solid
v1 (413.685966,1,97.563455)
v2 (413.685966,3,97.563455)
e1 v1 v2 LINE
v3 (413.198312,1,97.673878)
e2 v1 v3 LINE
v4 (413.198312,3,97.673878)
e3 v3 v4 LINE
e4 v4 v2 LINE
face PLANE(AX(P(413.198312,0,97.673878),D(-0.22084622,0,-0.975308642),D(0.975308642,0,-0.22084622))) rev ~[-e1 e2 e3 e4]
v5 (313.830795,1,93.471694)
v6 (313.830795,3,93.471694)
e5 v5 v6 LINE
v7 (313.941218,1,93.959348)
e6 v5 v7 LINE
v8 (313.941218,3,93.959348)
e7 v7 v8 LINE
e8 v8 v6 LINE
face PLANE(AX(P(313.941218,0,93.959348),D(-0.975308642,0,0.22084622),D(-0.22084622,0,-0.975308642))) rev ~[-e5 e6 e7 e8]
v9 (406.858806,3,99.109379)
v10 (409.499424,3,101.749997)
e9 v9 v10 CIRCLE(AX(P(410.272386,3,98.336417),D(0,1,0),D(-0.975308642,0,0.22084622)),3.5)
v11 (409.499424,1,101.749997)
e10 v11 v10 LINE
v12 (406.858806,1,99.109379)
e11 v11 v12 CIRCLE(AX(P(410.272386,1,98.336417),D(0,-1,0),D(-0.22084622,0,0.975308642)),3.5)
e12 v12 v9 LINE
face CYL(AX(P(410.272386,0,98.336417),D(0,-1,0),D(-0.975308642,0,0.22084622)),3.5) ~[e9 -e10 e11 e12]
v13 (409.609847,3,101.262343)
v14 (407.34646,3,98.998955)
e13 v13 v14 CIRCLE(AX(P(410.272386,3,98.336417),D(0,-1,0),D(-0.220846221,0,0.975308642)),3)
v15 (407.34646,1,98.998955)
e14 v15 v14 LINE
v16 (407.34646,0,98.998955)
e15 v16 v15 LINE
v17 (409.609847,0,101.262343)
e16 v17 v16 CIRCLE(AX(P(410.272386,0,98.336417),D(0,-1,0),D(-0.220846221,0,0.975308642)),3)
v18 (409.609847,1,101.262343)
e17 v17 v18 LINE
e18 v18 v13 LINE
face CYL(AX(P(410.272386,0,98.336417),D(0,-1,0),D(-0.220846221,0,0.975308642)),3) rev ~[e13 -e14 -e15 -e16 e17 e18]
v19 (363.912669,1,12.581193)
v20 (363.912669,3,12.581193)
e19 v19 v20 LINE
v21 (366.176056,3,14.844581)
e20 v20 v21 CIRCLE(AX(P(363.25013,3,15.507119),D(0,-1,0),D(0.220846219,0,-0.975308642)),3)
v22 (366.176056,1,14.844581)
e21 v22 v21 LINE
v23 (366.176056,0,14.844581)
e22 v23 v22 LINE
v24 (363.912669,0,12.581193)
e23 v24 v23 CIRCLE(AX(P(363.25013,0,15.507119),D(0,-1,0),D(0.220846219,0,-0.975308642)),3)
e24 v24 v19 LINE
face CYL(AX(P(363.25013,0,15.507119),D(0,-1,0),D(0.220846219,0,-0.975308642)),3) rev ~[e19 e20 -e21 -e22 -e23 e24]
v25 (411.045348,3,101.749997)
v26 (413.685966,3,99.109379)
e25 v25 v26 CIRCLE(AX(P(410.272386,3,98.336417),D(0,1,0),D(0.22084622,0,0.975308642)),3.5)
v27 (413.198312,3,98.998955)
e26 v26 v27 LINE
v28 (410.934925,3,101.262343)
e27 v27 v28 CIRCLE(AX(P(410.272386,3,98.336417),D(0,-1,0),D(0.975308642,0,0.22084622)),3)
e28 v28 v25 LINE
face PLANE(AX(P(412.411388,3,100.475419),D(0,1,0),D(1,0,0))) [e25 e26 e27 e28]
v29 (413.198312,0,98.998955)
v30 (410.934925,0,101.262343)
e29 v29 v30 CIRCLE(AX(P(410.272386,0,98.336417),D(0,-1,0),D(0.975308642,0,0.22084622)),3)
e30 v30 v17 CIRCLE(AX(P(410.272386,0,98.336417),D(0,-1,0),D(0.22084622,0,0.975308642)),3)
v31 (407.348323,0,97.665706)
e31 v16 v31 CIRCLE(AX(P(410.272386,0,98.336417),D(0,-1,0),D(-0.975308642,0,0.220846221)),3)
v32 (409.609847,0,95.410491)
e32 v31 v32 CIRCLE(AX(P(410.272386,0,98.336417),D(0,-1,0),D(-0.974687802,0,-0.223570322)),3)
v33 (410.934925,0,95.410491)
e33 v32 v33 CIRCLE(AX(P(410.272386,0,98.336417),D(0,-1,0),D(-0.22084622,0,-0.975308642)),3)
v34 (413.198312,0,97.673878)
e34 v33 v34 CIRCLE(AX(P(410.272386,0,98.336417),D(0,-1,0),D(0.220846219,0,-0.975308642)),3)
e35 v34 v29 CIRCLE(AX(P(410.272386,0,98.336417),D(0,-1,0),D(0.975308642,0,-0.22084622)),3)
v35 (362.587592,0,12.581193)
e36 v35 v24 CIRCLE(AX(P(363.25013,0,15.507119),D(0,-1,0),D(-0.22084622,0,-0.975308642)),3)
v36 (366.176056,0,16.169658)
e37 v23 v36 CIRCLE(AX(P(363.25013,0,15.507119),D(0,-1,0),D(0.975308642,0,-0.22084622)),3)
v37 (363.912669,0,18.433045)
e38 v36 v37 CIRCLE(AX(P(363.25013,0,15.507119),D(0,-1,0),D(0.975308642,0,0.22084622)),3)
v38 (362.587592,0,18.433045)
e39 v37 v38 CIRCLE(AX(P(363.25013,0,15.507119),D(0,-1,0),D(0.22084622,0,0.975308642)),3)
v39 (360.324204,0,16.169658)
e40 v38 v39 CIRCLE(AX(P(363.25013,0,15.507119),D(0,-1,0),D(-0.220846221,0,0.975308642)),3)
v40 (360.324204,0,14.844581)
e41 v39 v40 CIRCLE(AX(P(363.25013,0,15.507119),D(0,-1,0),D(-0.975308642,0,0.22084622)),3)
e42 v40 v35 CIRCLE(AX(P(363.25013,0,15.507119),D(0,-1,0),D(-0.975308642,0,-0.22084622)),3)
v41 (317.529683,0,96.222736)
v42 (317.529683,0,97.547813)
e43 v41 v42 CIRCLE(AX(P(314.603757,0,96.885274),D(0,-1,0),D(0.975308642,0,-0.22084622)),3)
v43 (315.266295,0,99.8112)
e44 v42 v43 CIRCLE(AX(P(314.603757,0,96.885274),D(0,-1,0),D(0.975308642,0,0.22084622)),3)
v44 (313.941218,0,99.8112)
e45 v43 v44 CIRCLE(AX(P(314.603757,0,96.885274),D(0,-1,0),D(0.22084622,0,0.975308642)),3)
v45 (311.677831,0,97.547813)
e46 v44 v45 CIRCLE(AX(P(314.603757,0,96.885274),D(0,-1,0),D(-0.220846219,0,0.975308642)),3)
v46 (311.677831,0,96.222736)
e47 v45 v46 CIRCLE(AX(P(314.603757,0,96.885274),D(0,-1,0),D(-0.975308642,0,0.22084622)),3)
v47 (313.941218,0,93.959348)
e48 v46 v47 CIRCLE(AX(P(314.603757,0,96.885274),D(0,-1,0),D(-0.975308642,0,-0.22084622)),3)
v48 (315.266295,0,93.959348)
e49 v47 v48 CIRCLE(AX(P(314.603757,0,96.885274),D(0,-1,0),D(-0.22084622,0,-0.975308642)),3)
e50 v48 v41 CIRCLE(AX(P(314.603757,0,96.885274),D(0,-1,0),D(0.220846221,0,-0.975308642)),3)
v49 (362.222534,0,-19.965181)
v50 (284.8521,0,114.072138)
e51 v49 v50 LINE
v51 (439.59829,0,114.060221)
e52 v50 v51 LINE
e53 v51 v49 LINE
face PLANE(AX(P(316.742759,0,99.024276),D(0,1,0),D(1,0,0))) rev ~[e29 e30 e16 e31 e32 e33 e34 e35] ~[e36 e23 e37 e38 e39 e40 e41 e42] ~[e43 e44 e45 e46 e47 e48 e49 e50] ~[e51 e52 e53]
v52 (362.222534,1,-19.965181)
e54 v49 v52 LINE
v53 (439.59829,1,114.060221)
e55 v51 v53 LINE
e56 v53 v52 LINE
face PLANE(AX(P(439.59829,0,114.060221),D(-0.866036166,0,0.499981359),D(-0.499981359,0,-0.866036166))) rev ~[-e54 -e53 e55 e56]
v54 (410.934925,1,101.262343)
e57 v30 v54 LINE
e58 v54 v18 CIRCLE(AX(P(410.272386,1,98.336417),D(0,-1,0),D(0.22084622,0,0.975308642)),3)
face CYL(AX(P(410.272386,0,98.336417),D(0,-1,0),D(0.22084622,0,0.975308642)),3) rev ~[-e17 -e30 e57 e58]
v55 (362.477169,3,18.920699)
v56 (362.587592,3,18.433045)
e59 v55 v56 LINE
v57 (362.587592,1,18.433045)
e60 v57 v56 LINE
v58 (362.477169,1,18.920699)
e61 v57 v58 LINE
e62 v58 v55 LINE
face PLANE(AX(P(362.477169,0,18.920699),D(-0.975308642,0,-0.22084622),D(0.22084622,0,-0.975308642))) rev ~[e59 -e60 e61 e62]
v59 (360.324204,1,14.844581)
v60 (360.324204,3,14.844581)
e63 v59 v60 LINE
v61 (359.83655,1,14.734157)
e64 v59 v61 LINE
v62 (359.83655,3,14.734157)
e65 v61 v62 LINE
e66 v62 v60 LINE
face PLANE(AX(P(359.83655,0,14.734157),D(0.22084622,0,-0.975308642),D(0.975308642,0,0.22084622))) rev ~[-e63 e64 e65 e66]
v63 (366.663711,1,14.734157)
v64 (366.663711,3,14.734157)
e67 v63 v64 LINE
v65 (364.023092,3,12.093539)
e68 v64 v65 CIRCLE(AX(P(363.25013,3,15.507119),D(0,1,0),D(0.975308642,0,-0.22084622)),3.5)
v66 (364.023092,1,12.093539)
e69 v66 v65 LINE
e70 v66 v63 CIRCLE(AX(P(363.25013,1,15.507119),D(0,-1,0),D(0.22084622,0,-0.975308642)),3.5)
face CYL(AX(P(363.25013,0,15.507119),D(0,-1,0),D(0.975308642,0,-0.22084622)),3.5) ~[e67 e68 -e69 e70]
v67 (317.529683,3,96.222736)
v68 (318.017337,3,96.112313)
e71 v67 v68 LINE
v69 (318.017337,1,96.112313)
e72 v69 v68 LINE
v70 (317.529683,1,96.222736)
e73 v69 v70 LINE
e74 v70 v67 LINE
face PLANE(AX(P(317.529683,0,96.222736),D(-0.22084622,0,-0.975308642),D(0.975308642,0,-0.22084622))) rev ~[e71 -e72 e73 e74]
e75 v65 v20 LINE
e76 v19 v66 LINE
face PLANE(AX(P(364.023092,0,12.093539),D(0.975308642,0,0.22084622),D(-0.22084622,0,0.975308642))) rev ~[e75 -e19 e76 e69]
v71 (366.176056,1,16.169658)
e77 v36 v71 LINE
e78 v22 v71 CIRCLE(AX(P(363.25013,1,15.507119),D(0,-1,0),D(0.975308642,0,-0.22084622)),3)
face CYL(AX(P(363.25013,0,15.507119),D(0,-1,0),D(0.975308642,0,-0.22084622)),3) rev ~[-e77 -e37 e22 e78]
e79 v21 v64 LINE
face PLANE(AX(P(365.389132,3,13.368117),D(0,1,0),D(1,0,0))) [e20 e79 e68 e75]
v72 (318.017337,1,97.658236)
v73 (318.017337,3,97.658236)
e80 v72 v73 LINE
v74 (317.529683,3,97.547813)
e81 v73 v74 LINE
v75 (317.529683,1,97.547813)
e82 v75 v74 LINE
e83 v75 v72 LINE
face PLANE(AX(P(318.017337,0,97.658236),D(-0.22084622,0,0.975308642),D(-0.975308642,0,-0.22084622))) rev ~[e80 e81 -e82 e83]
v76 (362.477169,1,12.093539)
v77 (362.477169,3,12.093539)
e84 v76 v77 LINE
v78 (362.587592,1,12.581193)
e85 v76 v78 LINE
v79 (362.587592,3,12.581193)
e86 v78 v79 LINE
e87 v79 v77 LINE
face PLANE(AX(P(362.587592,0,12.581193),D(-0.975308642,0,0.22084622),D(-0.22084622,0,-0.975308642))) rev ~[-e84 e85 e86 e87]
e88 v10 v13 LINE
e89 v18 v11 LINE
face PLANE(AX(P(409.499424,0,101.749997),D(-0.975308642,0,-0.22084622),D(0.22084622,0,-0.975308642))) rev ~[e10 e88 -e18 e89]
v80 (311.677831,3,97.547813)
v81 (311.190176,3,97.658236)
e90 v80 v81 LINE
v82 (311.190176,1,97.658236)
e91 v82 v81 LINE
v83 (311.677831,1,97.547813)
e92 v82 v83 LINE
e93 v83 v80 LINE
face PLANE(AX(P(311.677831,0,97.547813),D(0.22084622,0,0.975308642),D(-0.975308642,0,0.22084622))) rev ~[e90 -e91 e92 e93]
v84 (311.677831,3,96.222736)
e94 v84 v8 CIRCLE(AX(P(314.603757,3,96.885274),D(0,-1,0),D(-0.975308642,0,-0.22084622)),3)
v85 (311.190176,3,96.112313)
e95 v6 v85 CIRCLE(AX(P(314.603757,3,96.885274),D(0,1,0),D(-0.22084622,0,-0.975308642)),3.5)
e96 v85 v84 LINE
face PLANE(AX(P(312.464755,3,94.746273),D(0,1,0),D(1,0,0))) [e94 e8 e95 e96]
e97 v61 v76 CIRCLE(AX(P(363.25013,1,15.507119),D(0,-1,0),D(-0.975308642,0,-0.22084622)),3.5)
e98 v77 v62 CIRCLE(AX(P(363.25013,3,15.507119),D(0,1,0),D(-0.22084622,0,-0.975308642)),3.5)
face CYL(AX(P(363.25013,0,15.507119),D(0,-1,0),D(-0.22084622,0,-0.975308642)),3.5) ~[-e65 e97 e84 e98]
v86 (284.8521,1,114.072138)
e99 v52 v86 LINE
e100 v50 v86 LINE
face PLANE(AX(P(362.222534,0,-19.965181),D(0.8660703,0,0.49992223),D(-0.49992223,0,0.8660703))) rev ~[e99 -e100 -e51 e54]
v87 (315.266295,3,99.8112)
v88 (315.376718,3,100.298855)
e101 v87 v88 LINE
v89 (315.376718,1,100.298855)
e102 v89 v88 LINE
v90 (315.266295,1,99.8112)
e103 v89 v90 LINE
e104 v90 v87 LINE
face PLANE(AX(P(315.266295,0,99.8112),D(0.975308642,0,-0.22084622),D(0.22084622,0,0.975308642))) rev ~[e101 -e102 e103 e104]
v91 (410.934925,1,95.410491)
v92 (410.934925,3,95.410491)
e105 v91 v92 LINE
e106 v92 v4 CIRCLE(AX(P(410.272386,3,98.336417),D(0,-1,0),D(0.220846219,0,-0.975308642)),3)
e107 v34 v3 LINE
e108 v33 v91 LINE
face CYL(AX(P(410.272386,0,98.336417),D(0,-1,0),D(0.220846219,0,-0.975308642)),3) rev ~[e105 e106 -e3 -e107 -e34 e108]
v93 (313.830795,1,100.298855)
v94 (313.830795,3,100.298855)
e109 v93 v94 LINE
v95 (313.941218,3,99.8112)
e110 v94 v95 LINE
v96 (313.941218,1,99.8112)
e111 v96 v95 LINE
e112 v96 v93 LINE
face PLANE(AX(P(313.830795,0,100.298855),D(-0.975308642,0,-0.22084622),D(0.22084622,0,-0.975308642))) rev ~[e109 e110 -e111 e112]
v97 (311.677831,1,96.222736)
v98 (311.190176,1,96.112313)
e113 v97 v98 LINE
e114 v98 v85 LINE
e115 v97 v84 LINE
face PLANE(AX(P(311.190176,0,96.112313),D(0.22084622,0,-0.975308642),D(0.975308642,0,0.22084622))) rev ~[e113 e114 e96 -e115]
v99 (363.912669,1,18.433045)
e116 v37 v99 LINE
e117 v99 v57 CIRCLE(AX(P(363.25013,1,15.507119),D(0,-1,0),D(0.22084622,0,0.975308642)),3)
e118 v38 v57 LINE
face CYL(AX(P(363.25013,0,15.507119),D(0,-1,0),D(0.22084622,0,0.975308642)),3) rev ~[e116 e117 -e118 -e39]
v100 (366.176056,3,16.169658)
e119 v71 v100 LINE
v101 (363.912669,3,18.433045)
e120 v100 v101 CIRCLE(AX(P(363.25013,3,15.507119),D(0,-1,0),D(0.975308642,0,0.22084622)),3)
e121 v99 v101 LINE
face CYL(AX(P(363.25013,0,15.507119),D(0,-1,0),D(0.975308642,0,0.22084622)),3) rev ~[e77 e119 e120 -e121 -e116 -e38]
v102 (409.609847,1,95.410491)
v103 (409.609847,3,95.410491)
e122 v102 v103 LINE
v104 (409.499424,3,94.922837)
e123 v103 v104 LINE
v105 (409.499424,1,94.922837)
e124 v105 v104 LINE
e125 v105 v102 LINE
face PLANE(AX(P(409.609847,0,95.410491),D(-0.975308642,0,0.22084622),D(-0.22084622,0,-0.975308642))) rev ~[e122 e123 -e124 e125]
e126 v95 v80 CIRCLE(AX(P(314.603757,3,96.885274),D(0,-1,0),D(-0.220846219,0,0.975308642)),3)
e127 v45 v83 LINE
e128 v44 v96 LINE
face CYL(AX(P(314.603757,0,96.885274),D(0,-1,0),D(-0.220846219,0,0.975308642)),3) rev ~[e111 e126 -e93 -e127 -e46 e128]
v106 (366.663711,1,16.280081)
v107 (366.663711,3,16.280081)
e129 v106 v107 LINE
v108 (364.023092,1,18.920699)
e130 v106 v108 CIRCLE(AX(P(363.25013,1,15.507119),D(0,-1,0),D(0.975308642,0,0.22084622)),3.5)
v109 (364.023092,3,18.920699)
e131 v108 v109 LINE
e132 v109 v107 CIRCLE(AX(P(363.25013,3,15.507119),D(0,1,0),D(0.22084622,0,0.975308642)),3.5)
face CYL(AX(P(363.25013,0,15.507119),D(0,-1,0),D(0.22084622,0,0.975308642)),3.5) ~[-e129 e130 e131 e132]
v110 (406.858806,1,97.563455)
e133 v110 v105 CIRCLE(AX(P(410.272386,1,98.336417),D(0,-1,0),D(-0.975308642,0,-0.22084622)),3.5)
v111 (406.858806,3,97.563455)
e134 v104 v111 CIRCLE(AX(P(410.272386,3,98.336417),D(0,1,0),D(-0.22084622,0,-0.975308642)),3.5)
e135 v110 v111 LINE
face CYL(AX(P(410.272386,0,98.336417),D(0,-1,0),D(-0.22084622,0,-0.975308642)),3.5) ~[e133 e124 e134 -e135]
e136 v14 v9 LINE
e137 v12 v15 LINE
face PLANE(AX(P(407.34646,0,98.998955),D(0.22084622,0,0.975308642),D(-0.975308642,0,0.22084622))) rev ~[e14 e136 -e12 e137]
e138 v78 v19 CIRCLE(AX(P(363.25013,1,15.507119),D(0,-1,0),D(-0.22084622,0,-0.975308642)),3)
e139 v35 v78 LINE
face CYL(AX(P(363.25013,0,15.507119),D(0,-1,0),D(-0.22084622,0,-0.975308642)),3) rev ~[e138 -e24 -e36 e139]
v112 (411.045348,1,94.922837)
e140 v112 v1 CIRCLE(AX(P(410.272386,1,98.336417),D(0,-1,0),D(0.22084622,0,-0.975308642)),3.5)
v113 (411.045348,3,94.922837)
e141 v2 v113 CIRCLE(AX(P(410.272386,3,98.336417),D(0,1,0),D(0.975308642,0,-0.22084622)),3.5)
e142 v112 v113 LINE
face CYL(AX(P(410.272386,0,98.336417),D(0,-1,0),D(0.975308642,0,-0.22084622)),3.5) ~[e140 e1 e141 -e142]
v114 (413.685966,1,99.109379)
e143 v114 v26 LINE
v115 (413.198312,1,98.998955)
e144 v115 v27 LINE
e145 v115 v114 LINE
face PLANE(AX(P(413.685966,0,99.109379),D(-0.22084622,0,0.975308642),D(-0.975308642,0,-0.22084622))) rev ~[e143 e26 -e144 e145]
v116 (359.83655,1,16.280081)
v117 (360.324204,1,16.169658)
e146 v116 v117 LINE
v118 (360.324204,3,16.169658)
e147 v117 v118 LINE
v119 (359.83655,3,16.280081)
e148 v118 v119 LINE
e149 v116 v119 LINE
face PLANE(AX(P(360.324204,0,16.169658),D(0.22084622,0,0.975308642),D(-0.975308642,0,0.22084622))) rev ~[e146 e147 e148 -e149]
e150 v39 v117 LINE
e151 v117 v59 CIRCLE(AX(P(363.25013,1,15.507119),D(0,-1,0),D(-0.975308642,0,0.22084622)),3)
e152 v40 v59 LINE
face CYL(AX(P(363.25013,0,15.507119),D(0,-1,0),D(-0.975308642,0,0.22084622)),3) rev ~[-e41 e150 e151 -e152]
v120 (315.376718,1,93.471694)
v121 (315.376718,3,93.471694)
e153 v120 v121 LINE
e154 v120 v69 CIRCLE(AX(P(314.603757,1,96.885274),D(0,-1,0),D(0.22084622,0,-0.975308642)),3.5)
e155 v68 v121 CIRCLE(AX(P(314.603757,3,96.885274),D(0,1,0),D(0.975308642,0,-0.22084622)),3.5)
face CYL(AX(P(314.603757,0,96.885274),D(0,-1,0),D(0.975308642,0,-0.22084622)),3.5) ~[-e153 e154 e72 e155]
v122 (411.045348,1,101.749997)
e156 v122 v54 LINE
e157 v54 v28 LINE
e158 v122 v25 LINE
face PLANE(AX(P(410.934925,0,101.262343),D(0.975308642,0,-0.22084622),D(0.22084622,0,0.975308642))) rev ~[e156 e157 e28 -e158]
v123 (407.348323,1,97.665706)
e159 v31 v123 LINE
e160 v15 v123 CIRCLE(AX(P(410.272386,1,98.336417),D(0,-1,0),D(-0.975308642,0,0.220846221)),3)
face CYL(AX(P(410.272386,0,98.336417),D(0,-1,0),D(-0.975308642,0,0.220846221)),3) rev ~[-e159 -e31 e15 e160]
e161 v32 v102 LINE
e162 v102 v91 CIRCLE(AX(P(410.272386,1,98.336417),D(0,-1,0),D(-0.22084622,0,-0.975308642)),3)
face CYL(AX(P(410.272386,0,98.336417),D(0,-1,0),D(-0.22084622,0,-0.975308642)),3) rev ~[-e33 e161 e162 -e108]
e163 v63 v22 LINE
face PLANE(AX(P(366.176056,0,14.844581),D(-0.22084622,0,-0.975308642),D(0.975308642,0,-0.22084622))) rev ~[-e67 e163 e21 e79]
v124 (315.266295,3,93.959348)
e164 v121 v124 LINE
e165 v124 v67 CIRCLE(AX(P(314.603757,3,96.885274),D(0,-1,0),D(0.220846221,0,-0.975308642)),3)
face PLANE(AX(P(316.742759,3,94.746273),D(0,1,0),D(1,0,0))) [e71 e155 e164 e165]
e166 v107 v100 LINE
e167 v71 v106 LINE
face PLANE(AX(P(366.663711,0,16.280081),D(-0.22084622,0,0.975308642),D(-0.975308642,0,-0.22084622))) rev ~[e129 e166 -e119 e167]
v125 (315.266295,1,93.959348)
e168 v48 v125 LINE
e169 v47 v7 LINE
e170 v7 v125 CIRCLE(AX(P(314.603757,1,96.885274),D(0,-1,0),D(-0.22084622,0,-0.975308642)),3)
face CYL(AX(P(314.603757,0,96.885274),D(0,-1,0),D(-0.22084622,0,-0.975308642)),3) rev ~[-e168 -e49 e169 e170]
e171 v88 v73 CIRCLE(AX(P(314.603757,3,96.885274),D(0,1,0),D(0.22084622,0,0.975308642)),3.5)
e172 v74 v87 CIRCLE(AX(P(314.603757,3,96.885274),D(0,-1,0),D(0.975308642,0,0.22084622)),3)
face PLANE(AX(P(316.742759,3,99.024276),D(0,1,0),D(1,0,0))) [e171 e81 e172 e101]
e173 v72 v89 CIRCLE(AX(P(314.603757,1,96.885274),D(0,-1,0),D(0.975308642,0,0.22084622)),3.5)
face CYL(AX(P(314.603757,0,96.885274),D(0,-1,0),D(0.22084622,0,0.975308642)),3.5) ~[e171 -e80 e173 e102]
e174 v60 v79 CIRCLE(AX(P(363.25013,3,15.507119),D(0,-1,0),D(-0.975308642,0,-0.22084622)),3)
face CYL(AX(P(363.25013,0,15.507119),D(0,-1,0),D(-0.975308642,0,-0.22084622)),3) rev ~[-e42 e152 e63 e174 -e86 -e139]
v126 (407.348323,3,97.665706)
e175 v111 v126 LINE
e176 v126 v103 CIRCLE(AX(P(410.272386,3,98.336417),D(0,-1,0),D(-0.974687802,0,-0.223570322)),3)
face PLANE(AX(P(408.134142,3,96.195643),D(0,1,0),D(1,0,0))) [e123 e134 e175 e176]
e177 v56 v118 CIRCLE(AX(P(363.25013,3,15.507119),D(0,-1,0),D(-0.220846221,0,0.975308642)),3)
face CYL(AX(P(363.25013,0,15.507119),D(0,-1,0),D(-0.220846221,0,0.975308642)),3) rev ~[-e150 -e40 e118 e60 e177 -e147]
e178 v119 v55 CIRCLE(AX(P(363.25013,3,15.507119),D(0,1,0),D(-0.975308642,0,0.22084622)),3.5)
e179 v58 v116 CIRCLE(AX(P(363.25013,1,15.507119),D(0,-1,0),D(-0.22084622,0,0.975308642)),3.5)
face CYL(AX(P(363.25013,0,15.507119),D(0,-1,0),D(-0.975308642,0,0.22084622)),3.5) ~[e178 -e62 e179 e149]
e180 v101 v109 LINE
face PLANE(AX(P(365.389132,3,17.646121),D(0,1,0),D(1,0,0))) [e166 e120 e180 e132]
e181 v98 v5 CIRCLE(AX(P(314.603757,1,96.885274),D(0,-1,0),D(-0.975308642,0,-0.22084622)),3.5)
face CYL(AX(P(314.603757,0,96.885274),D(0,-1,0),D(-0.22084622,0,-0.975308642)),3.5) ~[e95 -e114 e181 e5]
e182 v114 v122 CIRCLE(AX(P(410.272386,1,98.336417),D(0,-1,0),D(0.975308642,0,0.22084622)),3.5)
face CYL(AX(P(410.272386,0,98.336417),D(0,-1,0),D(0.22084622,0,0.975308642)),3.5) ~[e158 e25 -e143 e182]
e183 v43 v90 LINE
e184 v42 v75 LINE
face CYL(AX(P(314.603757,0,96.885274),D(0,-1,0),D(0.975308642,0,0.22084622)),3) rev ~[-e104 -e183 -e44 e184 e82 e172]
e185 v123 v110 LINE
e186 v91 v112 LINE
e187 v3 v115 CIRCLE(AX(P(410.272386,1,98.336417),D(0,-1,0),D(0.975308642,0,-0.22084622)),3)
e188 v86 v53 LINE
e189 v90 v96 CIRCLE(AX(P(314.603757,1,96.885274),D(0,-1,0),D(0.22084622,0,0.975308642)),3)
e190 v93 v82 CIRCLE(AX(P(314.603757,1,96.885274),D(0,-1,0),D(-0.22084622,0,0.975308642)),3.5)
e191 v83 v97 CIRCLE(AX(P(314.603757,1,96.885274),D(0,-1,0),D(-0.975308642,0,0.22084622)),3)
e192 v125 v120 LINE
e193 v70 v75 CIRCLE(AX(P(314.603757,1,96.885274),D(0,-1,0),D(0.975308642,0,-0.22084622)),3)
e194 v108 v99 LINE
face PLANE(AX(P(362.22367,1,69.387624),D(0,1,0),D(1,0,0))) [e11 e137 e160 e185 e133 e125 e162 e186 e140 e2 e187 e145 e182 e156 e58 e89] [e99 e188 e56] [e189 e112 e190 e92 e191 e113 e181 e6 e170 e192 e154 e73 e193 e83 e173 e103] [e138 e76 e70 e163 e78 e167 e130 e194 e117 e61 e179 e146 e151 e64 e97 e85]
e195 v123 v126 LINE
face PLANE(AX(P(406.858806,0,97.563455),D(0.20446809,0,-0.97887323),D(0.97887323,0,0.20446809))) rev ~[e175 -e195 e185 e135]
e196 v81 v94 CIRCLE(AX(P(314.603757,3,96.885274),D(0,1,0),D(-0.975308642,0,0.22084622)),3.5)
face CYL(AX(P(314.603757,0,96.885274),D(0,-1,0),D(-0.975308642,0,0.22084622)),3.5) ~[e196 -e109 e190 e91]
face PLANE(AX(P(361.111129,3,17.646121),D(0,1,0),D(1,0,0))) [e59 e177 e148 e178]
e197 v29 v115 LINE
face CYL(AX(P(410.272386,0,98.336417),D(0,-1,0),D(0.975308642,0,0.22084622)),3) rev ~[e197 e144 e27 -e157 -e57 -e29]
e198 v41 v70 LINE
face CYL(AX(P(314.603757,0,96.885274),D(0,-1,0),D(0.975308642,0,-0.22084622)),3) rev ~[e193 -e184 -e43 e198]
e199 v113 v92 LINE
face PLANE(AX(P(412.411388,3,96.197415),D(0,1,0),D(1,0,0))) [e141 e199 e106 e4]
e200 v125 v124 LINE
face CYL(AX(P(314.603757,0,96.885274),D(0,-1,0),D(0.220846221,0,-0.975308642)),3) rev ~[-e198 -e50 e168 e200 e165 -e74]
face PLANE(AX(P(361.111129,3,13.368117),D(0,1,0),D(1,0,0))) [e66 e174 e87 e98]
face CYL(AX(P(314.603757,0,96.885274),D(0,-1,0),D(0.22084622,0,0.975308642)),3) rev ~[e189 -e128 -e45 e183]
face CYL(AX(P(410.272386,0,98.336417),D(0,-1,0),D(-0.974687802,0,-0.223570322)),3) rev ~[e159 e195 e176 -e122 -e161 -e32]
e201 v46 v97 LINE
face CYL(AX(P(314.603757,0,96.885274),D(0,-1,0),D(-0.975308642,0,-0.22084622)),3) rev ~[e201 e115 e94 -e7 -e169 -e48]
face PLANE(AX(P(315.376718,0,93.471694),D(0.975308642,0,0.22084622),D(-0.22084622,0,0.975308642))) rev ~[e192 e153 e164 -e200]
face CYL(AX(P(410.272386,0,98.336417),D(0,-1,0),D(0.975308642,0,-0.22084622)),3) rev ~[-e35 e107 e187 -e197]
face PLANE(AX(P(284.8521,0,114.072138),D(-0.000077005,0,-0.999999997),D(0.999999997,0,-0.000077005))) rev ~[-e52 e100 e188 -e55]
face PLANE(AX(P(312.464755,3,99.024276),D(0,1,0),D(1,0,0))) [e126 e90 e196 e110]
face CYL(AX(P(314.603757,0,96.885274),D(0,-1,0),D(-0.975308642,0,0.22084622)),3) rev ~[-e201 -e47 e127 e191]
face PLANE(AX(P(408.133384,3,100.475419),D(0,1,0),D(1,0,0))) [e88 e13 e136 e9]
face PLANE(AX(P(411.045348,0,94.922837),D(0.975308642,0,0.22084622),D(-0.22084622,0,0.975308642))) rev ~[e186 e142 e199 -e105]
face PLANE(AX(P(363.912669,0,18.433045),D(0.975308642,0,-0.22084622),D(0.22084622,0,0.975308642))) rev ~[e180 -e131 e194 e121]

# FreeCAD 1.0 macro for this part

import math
import FreeCAD as App
import Part
import Sketcher

V = App.Vector


def add_polygon(sketch, points):
    """Adds a closed chain of lines whose ends are joined by coincident constraints."""
    first, n = sketch.GeometryCount, len(points)
    for a, b in zip(points, points[1:] + points[:1]):
        sketch.addGeometry(Part.LineSegment(App.Vector(*a, 0), App.Vector(*b, 0)), False)
    for i in range(n):
        sketch.addConstraint(Sketcher.Constraint("Coincident", first + i, 2, first + (i + 1) % n, 1))

doc = App.newDocument("Part")
body = doc.addObject("PartDesign::Body", "Body")

sketch1 = body.newObject("Sketcher::SketchObject", "Sketch")
sketch1.AttachmentSupport = (doc.getObject("XZ_Plane"), [""])
sketch1.MapMode = "FlatFace"
add_polygon(sketch1, [(362.222534, -19.965181), (284.8521, 114.072138), (439.59829, 114.060221)])
sketch1.addGeometry(Part.LineSegment(V(313.941218, 99.8112, 0), V(313.830795, 100.298855, 0)), False)
sketch1.addGeometry(Part.ArcOfCircle(Part.Circle(V(314.603757, 96.885274, 0), V(0, 0, 1), 3.5), math.radians(102.75874), math.radians(167.24126)), False)
sketch1.addGeometry(Part.LineSegment(V(311.190176, 97.658236, 0), V(311.677831, 97.547813, 0)), False)
sketch1.addGeometry(Part.ArcOfCircle(Part.Circle(V(314.603757, 96.885274, 0), V(0, 0, 1), 3), math.radians(167.24126), math.radians(192.75874)), False)
sketch1.addGeometry(Part.LineSegment(V(311.677831, 96.222736, 0), V(311.190176, 96.112313, 0)), False)
sketch1.addGeometry(Part.ArcOfCircle(Part.Circle(V(314.603757, 96.885274, 0), V(0, 0, 1), 3.5), math.radians(-167.24126), math.radians(-102.75874)), False)
sketch1.addGeometry(Part.LineSegment(V(313.830795, 93.471694, 0), V(313.941218, 93.959348, 0)), False)
sketch1.addGeometry(Part.ArcOfCircle(Part.Circle(V(314.603757, 96.885274, 0), V(0, 0, 1), 3), math.radians(-102.75874), math.radians(-77.24126)), False)
sketch1.addGeometry(Part.LineSegment(V(315.266295, 93.959348, 0), V(315.376718, 93.471694, 0)), False)
sketch1.addGeometry(Part.ArcOfCircle(Part.Circle(V(314.603757, 96.885274, 0), V(0, 0, 1), 3.5), math.radians(-77.24126), math.radians(-12.75874)), False)
sketch1.addGeometry(Part.LineSegment(V(318.017337, 96.112313, 0), V(317.529683, 96.222736, 0)), False)
sketch1.addGeometry(Part.ArcOfCircle(Part.Circle(V(314.603757, 96.885274, 0), V(0, 0, 1), 3), math.radians(-12.75874), math.radians(12.75874)), False)
sketch1.addGeometry(Part.LineSegment(V(317.529683, 97.547813, 0), V(318.017337, 97.658236, 0)), False)
sketch1.addGeometry(Part.ArcOfCircle(Part.Circle(V(314.603757, 96.885274, 0), V(0, 0, 1), 3.5), math.radians(12.75874), math.radians(77.24126)), False)
sketch1.addGeometry(Part.LineSegment(V(315.376718, 100.298855, 0), V(315.266295, 99.8112, 0)), False)
sketch1.addGeometry(Part.ArcOfCircle(Part.Circle(V(314.603757, 96.885274, 0), V(0, 0, 1), 3), math.radians(77.24126), math.radians(102.75874)), False)
sketch1.addGeometry(Part.LineSegment(V(407.348323, 97.665706, 0), V(406.858806, 97.563455, 0)), False)
sketch1.addGeometry(Part.ArcOfCircle(Part.Circle(V(410.272386, 98.336417, 0), V(0, 0, 1), 3.5), math.radians(-167.24126), math.radians(-102.75874)), False)
sketch1.addGeometry(Part.LineSegment(V(409.499424, 94.922837, 0), V(409.609847, 95.410491, 0)), False)
sketch1.addGeometry(Part.ArcOfCircle(Part.Circle(V(410.272386, 98.336417, 0), V(0, 0, 1), 3), math.radians(-102.75874), math.radians(-77.24126)), False)
sketch1.addGeometry(Part.LineSegment(V(410.934925, 95.410491, 0), V(411.045348, 94.922837, 0)), False)
sketch1.addGeometry(Part.ArcOfCircle(Part.Circle(V(410.272386, 98.336417, 0), V(0, 0, 1), 3.5), math.radians(-77.24126), math.radians(-12.75874)), False)
sketch1.addGeometry(Part.LineSegment(V(413.685966, 97.563455, 0), V(413.198312, 97.673878, 0)), False)
sketch1.addGeometry(Part.ArcOfCircle(Part.Circle(V(410.272386, 98.336417, 0), V(0, 0, 1), 3), math.radians(-12.75874), math.radians(12.75874)), False)
sketch1.addGeometry(Part.LineSegment(V(413.198312, 98.998955, 0), V(413.685966, 99.109379, 0)), False)
sketch1.addGeometry(Part.ArcOfCircle(Part.Circle(V(410.272386, 98.336417, 0), V(0, 0, 1), 3.5), math.radians(12.75874), math.radians(77.24126)), False)
sketch1.addGeometry(Part.LineSegment(V(411.045348, 101.749997, 0), V(410.934925, 101.262343, 0)), False)
sketch1.addGeometry(Part.ArcOfCircle(Part.Circle(V(410.272386, 98.336417, 0), V(0, 0, 1), 3), math.radians(77.24126), math.radians(102.75874)), False)
sketch1.addGeometry(Part.LineSegment(V(409.609847, 101.262343, 0), V(409.499424, 101.749997, 0)), False)
sketch1.addGeometry(Part.ArcOfCircle(Part.Circle(V(410.272386, 98.336417, 0), V(0, 0, 1), 3.5), math.radians(102.75874), math.radians(167.24126)), False)
sketch1.addGeometry(Part.LineSegment(V(406.858806, 99.109379, 0), V(407.34646, 98.998955, 0)), False)
sketch1.addGeometry(Part.ArcOfCircle(Part.Circle(V(410.272386, 98.336417, 0), V(0, 0, 1), 3), math.radians(167.24126), math.radians(192.918822)), False)
sketch1.addGeometry(Part.ArcOfCircle(Part.Circle(V(363.25013, 15.507119, 0), V(0, 0, 1), 3), math.radians(-102.75874), math.radians(-77.24126)), False)
sketch1.addGeometry(Part.LineSegment(V(363.912669, 12.581193, 0), V(364.023092, 12.093539, 0)), False)
sketch1.addGeometry(Part.ArcOfCircle(Part.Circle(V(363.25013, 15.507119, 0), V(0, 0, 1), 3.5), math.radians(-77.24126), math.radians(-12.75874)), False)
sketch1.addGeometry(Part.LineSegment(V(366.663711, 14.734157, 0), V(366.176056, 14.844581, 0)), False)
sketch1.addGeometry(Part.ArcOfCircle(Part.Circle(V(363.25013, 15.507119, 0), V(0, 0, 1), 3), math.radians(-12.75874), math.radians(12.75874)), False)
sketch1.addGeometry(Part.LineSegment(V(366.176056, 16.169658, 0), V(366.663711, 16.280081, 0)), False)
sketch1.addGeometry(Part.ArcOfCircle(Part.Circle(V(363.25013, 15.507119, 0), V(0, 0, 1), 3.5), math.radians(12.75874), math.radians(77.24126)), False)
sketch1.addGeometry(Part.LineSegment(V(364.023092, 18.920699, 0), V(363.912669, 18.433045, 0)), False)
sketch1.addGeometry(Part.ArcOfCircle(Part.Circle(V(363.25013, 15.507119, 0), V(0, 0, 1), 3), math.radians(77.24126), math.radians(102.75874)), False)
sketch1.addGeometry(Part.LineSegment(V(362.587592, 18.433045, 0), V(362.477169, 18.920699, 0)), False)
sketch1.addGeometry(Part.ArcOfCircle(Part.Circle(V(363.25013, 15.507119, 0), V(0, 0, 1), 3.5), math.radians(102.75874), math.radians(167.24126)), False)
sketch1.addGeometry(Part.LineSegment(V(359.83655, 16.280081, 0), V(360.324204, 16.169658, 0)), False)
sketch1.addGeometry(Part.ArcOfCircle(Part.Circle(V(363.25013, 15.507119, 0), V(0, 0, 1), 3), math.radians(167.24126), math.radians(192.75874)), False)
sketch1.addGeometry(Part.LineSegment(V(360.324204, 14.844581, 0), V(359.83655, 14.734157, 0)), False)
sketch1.addGeometry(Part.ArcOfCircle(Part.Circle(V(363.25013, 15.507119, 0), V(0, 0, 1), 3.5), math.radians(-167.24126), math.radians(-102.75874)), False)
sketch1.addGeometry(Part.LineSegment(V(362.477169, 12.093539, 0), V(362.587592, 12.581193, 0)), False)
sketch1.addConstraint([
    Sketcher.Constraint("Coincident", 3, 2, 4, 1),
    Sketcher.Constraint("Coincident", 4, 2, 5, 1),
    Sketcher.Constraint("Coincident", 5, 2, 6, 1),
    Sketcher.Constraint("Coincident", 6, 2, 7, 1),
    Sketcher.Constraint("Coincident", 7, 2, 8, 1),
    Sketcher.Constraint("Coincident", 8, 2, 9, 1),
    Sketcher.Constraint("Coincident", 9, 2, 10, 1),
    Sketcher.Constraint("Coincident", 10, 2, 11, 1),
    Sketcher.Constraint("Coincident", 11, 2, 12, 1),
    Sketcher.Constraint("Coincident", 12, 2, 13, 1),
    Sketcher.Constraint("Coincident", 13, 2, 14, 1),
    Sketcher.Constraint("Coincident", 14, 2, 15, 1),
    Sketcher.Constraint("Coincident", 15, 2, 16, 1),
    Sketcher.Constraint("Coincident", 16, 2, 17, 1),
    Sketcher.Constraint("Coincident", 17, 2, 18, 1),
    Sketcher.Constraint("Coincident", 18, 2, 3, 1),
    Sketcher.Constraint("Coincident", 19, 2, 20, 1),
    Sketcher.Constraint("Coincident", 20, 2, 21, 1),
    Sketcher.Constraint("Coincident", 21, 2, 22, 1),
    Sketcher.Constraint("Coincident", 22, 2, 23, 1),
    Sketcher.Constraint("Coincident", 23, 2, 24, 1),
    Sketcher.Constraint("Coincident", 24, 2, 25, 1),
    Sketcher.Constraint("Coincident", 25, 2, 26, 1),
    Sketcher.Constraint("Coincident", 26, 2, 27, 1),
    Sketcher.Constraint("Coincident", 27, 2, 28, 1),
    Sketcher.Constraint("Coincident", 28, 2, 29, 1),
    Sketcher.Constraint("Coincident", 29, 2, 30, 1),
    Sketcher.Constraint("Coincident", 30, 2, 31, 1),
    Sketcher.Constraint("Coincident", 31, 2, 32, 1),
    Sketcher.Constraint("Coincident", 32, 2, 33, 1),
    Sketcher.Constraint("Coincident", 33, 2, 34, 1),
    Sketcher.Constraint("Coincident", 34, 2, 19, 1),
    Sketcher.Constraint("Coincident", 35, 2, 36, 1),
    Sketcher.Constraint("Coincident", 36, 2, 37, 1),
    Sketcher.Constraint("Coincident", 37, 2, 38, 1),
    Sketcher.Constraint("Coincident", 38, 2, 39, 1),
    Sketcher.Constraint("Coincident", 39, 2, 40, 1),
    Sketcher.Constraint("Coincident", 40, 2, 41, 1),
    Sketcher.Constraint("Coincident", 41, 2, 42, 1),
    Sketcher.Constraint("Coincident", 42, 2, 43, 1),
    Sketcher.Constraint("Coincident", 43, 2, 44, 1),
    Sketcher.Constraint("Coincident", 44, 2, 45, 1),
    Sketcher.Constraint("Coincident", 45, 2, 46, 1),
    Sketcher.Constraint("Coincident", 46, 2, 47, 1),
    Sketcher.Constraint("Coincident", 47, 2, 48, 1),
    Sketcher.Constraint("Coincident", 48, 2, 49, 1),
    Sketcher.Constraint("Coincident", 49, 2, 50, 1),
    Sketcher.Constraint("Coincident", 50, 2, 35, 1),
    Sketcher.Constraint("Coincident", 6, 3, 4, 3),
    Sketcher.Constraint("Coincident", 8, 3, 4, 3),
    Sketcher.Constraint("Coincident", 10, 3, 4, 3),
    Sketcher.Constraint("Coincident", 12, 3, 4, 3),
    Sketcher.Constraint("Coincident", 14, 3, 4, 3),
    Sketcher.Constraint("Coincident", 16, 3, 4, 3),
    Sketcher.Constraint("Coincident", 18, 3, 4, 3),
    Sketcher.Constraint("Coincident", 22, 3, 20, 3),
    Sketcher.Constraint("Coincident", 24, 3, 20, 3),
    Sketcher.Constraint("Coincident", 26, 3, 20, 3),
    Sketcher.Constraint("Coincident", 28, 3, 20, 3),
    Sketcher.Constraint("Coincident", 30, 3, 20, 3),
    Sketcher.Constraint("Coincident", 32, 3, 20, 3),
    Sketcher.Constraint("Coincident", 34, 3, 20, 3),
    Sketcher.Constraint("Coincident", 37, 3, 35, 3),
    Sketcher.Constraint("Coincident", 39, 3, 35, 3),
    Sketcher.Constraint("Coincident", 41, 3, 35, 3),
    Sketcher.Constraint("Coincident", 43, 3, 35, 3),
    Sketcher.Constraint("Coincident", 45, 3, 35, 3),
    Sketcher.Constraint("Coincident", 47, 3, 35, 3),
    Sketcher.Constraint("Coincident", 49, 3, 35, 3),
    Sketcher.Constraint("Equal", 4, 8),
    Sketcher.Constraint("Equal", 6, 10),
    Sketcher.Constraint("Equal", 8, 12),
    Sketcher.Constraint("Equal", 10, 14),
    Sketcher.Constraint("Equal", 12, 16),
    Sketcher.Constraint("Equal", 14, 18),
    Sketcher.Constraint("Equal", 16, 20),
    Sketcher.Constraint("Equal", 18, 22),
    Sketcher.Constraint("Equal", 20, 24),
    Sketcher.Constraint("Equal", 22, 26),
    Sketcher.Constraint("Equal", 24, 28),
    Sketcher.Constraint("Equal", 26, 30),
    Sketcher.Constraint("Equal", 28, 32),
    Sketcher.Constraint("Equal", 30, 34),
    Sketcher.Constraint("Equal", 34, 35),
    Sketcher.Constraint("Equal", 32, 37),
    Sketcher.Constraint("Equal", 35, 39),
    Sketcher.Constraint("Equal", 37, 41),
    Sketcher.Constraint("Equal", 39, 43),
    Sketcher.Constraint("Equal", 41, 45),
    Sketcher.Constraint("Equal", 43, 47),
    Sketcher.Constraint("Equal", 45, 49),
    Sketcher.Constraint("Perpendicular", 3, 7),
    Sketcher.Constraint("Perpendicular", 5, 9),
    Sketcher.Constraint("Perpendicular", 7, 11),
    Sketcher.Constraint("Perpendicular", 9, 13),
    Sketcher.Constraint("Perpendicular", 11, 15),
    Sketcher.Constraint("Perpendicular", 13, 17),
    Sketcher.Constraint("Parallel", 17, 21),
    Sketcher.Constraint("Perpendicular", 15, 23),
    Sketcher.Constraint("Perpendicular", 21, 25),
    Sketcher.Constraint("Perpendicular", 23, 27),
    Sketcher.Constraint("Perpendicular", 25, 29),
    Sketcher.Constraint("Perpendicular", 27, 31),
    Sketcher.Constraint("Perpendicular", 29, 33),
    Sketcher.Constraint("Parallel", 31, 36),
    Sketcher.Constraint("Parallel", 33, 38),
    Sketcher.Constraint("Perpendicular", 36, 40),
    Sketcher.Constraint("Perpendicular", 38, 42),
    Sketcher.Constraint("Perpendicular", 40, 44),
    Sketcher.Constraint("Perpendicular", 42, 46),
    Sketcher.Constraint("Perpendicular", 44, 48),
    Sketcher.Constraint("Perpendicular", 46, 50),
    Sketcher.Constraint("Horizontal", 9, 2, 10, 2),
    Sketcher.Constraint("Horizontal", 8, 2, 11, 2),
    Sketcher.Constraint("Horizontal", 7, 2, 12, 2),
    Sketcher.Constraint("Horizontal", 5, 2, 14, 2),
    Sketcher.Constraint("Horizontal", 3, 2, 16, 2),
    Sketcher.Constraint("Horizontal", 21, 2, 22, 2),
    Sketcher.Constraint("Horizontal", 19, 2, 24, 2),
    Sketcher.Constraint("Horizontal", 29, 2, 30, 2),
    Sketcher.Constraint("Horizontal", 27, 2, 32, 2),
    Sketcher.Constraint("Horizontal", 42, 2, 43, 2),
    Sketcher.Constraint("Horizontal", 40, 2, 45, 2),
    Sketcher.Constraint("Horizontal", 38, 2, 47, 2),
    Sketcher.Constraint("Horizontal", 36, 2, 49, 2),
    Sketcher.Constraint("Vertical", 5, 2, 6, 2),
    Sketcher.Constraint("Vertical", 3, 2, 8, 2),
    Sketcher.Constraint("Vertical", 25, 2, 26, 2),
    Sketcher.Constraint("Vertical", 23, 2, 28, 2),
    Sketcher.Constraint("Vertical", 38, 2, 39, 2),
    Sketcher.Constraint("Vertical", 36, 2, 41, 2),
    Sketcher.Constraint("Radius", 6, 3.0),
    Sketcher.Constraint("Radius", 4, 3.5),
    Sketcher.Constraint("DistanceX", -1, 1, 0, 2, 284.8521),
    Sketcher.Constraint("DistanceY", -1, 1, 17, 2, 99.8112),
    Sketcher.Constraint("DistanceY", -1, 1, 41, 2, 18.920699),
    Sketcher.Constraint("Distance", 0, 154.76494),
    Sketcher.Constraint("Distance", 1, 154.74619),
    Sketcher.Constraint("Distance", 2, 154.757281),
    Sketcher.Constraint("Distance", 19, 0.500082),
    Sketcher.Constraint("DistanceX", -1, 1, 35, 3, 363.25013),
    Sketcher.Constraint("DistanceY", -1, 1, 35, 3, 15.507119),
    Sketcher.Constraint("DistanceY", -1, 1, 1, 2, 114.060221),
    Sketcher.Constraint("DistanceY", 2, 2, -1, 1, 19.965181),
    Sketcher.Constraint("DistanceX", -1, 1, 5, 2, 311.677831),
    Sketcher.Constraint("DistanceX", -1, 1, 9, 2, 313.941218),
    Sketcher.Constraint("DistanceY", -1, 1, 9, 2, 93.959348),
    Sketcher.Constraint("DistanceX", -1, 1, 11, 2, 315.376718),
    Sketcher.Constraint("DistanceY", -1, 1, 21, 2, 95.410491),
    Sketcher.Constraint("DistanceY", -1, 1, 25, 2, 97.673878),
    Sketcher.Constraint("DistanceY", -1, 1, 27, 2, 99.109379),
    Sketcher.Constraint("DistanceX", -1, 1, 33, 2, 407.34646),
    Sketcher.Constraint("DistanceX", -1, 1, 37, 2, 366.663711),
])
pad1 = body.newObject("PartDesign::Pad", "Pad")
pad1.Profile = sketch1
pad1.Length = 1
pad1.Reversed = True

sketch2 = body.newObject("Sketcher::SketchObject", "Sketch001")
sketch2.AttachmentSupport = (doc.getObject("XZ_Plane"), [""])
sketch2.MapMode = "FlatFace"
sketch2.addGeometry([
    Part.LineSegment(V(315.3, 99.8, 0), V(315.4, 100.3, 0)),
    Part.ArcOfCircle(Part.Circle(V(314.6, 96.9, 0), V(0, 0, 1), 3.5), math.radians(13), math.radians(77)),
    Part.LineSegment(V(318, 97.7, 0), V(317.5, 97.5, 0)),
    Part.ArcOfCircle(Part.Circle(V(314.6, 96.9, 0), V(0, 0, 1), 3), math.radians(13), math.radians(77)),
    Part.ArcOfCircle(Part.Circle(V(314.6, 96.9, 0), V(0, 0, 1), 3.5), math.radians(-77), math.radians(-13)),
    Part.LineSegment(V(315.4, 93.5, 0), V(315.3, 94, 0)),
    Part.ArcOfCircle(Part.Circle(V(314.6, 96.9, 0), V(0, 0, 1), 3), math.radians(-77), math.radians(-13)),
    Part.LineSegment(V(317.5, 96.2, 0), V(318, 96.1, 0)),
    Part.LineSegment(V(311.7, 97.5, 0), V(311.2, 97.7, 0)),
    Part.ArcOfCircle(Part.Circle(V(314.6, 96.9, 0), V(0, 0, 1), 3.5), math.radians(103), math.radians(167)),
    Part.LineSegment(V(313.8, 100.3, 0), V(313.9, 99.8, 0)),
    Part.ArcOfCircle(Part.Circle(V(314.6, 96.9, 0), V(0, 0, 1), 3), math.radians(103), math.radians(167)),
    Part.ArcOfCircle(Part.Circle(V(314.6, 96.9, 0), V(0, 0, 1), 3.5), math.radians(-167), math.radians(-103)),
    Part.LineSegment(V(311.2, 96.1, 0), V(311.7, 96.2, 0)),
    Part.ArcOfCircle(Part.Circle(V(314.6, 96.9, 0), V(0, 0, 1), 3), math.radians(-167), math.radians(-103)),
    Part.LineSegment(V(313.9, 94, 0), V(313.8, 93.5, 0)),
    Part.LineSegment(V(407.3, 99, 0), V(406.9, 99.1, 0)),
    Part.ArcOfCircle(Part.Circle(V(410.3, 98.3, 0), V(0, 0, 1), 3.5), math.radians(103), math.radians(167)),
    Part.LineSegment(V(409.5, 101.7, 0), V(409.6, 101.3, 0)),
    Part.ArcOfCircle(Part.Circle(V(410.3, 98.3, 0), V(0, 0, 1), 3), math.radians(103), math.radians(167)),
    Part.ArcOfCircle(Part.Circle(V(410.3, 98.3, 0), V(0, 0, 1), 3.5), math.radians(13), math.radians(77)),
    Part.LineSegment(V(413.7, 99.1, 0), V(413.2, 99, 0)),
    Part.ArcOfCircle(Part.Circle(V(410.3, 98.3, 0), V(0, 0, 1), 3), math.radians(13), math.radians(77)),
    Part.LineSegment(V(410.9, 101.3, 0), V(411, 101.7, 0)),
    Part.ArcOfCircle(Part.Circle(V(410.3, 98.3, 0), V(0, 0, 1), 3.5), math.radians(-77), math.radians(-13)),
    Part.LineSegment(V(411, 94.9, 0), V(410.9, 95.4, 0)),
    Part.ArcOfCircle(Part.Circle(V(410.3, 98.3, 0), V(0, 0, 1), 3), math.radians(-77), math.radians(-13)),
    Part.LineSegment(V(413.2, 97.7, 0), V(413.7, 97.6, 0)),
    Part.LineSegment(V(409.6, 95.4, 0), V(409.5, 94.9, 0)),
    Part.ArcOfCircle(Part.Circle(V(410.3, 98.3, 0), V(0, 0, 1), 3.5), math.radians(-167), math.radians(-103)),
    Part.LineSegment(V(406.9, 97.6, 0), V(407.3, 97.7, 0)),
    Part.ArcOfCircle(Part.Circle(V(410.3, 98.3, 0), V(0, 0, 1), 3), math.radians(-167), math.radians(-103)),
    Part.LineSegment(V(360.3, 16.2, 0), V(359.8, 16.3, 0)),
    Part.ArcOfCircle(Part.Circle(V(363.3, 15.5, 0), V(0, 0, 1), 3.5), math.radians(103), math.radians(167)),
    Part.LineSegment(V(362.5, 18.9, 0), V(362.6, 18.4, 0)),
    Part.ArcOfCircle(Part.Circle(V(363.3, 15.5, 0), V(0, 0, 1), 3), math.radians(103), math.radians(167)),
    Part.ArcOfCircle(Part.Circle(V(363.3, 15.5, 0), V(0, 0, 1), 3.5), math.radians(13), math.radians(77)),
    Part.LineSegment(V(366.7, 16.3, 0), V(366.2, 16.2, 0)),
    Part.ArcOfCircle(Part.Circle(V(363.3, 15.5, 0), V(0, 0, 1), 3), math.radians(13), math.radians(77)),
    Part.LineSegment(V(363.9, 18.4, 0), V(364, 18.9, 0)),
    Part.LineSegment(V(362.6, 12.6, 0), V(362.5, 12.1, 0)),
    Part.ArcOfCircle(Part.Circle(V(363.3, 15.5, 0), V(0, 0, 1), 3.5), math.radians(-167), math.radians(-103)),
    Part.LineSegment(V(359.8, 14.7, 0), V(360.3, 14.8, 0)),
    Part.ArcOfCircle(Part.Circle(V(363.3, 15.5, 0), V(0, 0, 1), 3), math.radians(-167), math.radians(-103)),
    Part.ArcOfCircle(Part.Circle(V(363.3, 15.5, 0), V(0, 0, 1), 3.5), math.radians(-77), math.radians(-13)),
    Part.LineSegment(V(364, 12.1, 0), V(363.9, 12.6, 0)),
    Part.ArcOfCircle(Part.Circle(V(363.3, 15.5, 0), V(0, 0, 1), 3), math.radians(-77), math.radians(-13)),
    Part.LineSegment(V(366.2, 14.8, 0), V(366.7, 14.7, 0)),
], False)
sketch2.addConstraint([
    Sketcher.Constraint("Coincident", 0, 2, 1, 2),
    Sketcher.Constraint("Coincident", 1, 1, 2, 1),
    Sketcher.Constraint("Coincident", 2, 2, 3, 1),
    Sketcher.Constraint("Coincident", 3, 2, 0, 1),
    Sketcher.Constraint("Coincident", 4, 1, 5, 1),
    Sketcher.Constraint("Coincident", 5, 2, 6, 1),
    Sketcher.Constraint("Coincident", 6, 2, 7, 1),
    Sketcher.Constraint("Coincident", 7, 2, 4, 2),
    Sketcher.Constraint("Coincident", 8, 2, 9, 2),
    Sketcher.Constraint("Coincident", 9, 1, 10, 1),
    Sketcher.Constraint("Coincident", 10, 2, 11, 1),
    Sketcher.Constraint("Coincident", 11, 2, 8, 1),
    Sketcher.Constraint("Coincident", 12, 1, 13, 1),
    Sketcher.Constraint("Coincident", 13, 2, 14, 1),
    Sketcher.Constraint("Coincident", 14, 2, 15, 1),
    Sketcher.Constraint("Coincident", 15, 2, 12, 2),
    Sketcher.Constraint("Coincident", 16, 2, 17, 2),
    Sketcher.Constraint("Coincident", 17, 1, 18, 1),
    Sketcher.Constraint("Coincident", 18, 2, 19, 1),
    Sketcher.Constraint("Coincident", 19, 2, 16, 1),
    Sketcher.Constraint("Coincident", 20, 1, 21, 1),
    Sketcher.Constraint("Coincident", 21, 2, 22, 1),
    Sketcher.Constraint("Coincident", 22, 2, 23, 1),
    Sketcher.Constraint("Coincident", 23, 2, 20, 2),
    Sketcher.Constraint("Coincident", 24, 1, 25, 1),
    Sketcher.Constraint("Coincident", 25, 2, 26, 1),
    Sketcher.Constraint("Coincident", 26, 2, 27, 1),
    Sketcher.Constraint("Coincident", 27, 2, 24, 2),
    Sketcher.Constraint("Coincident", 28, 2, 29, 2),
    Sketcher.Constraint("Coincident", 29, 1, 30, 1),
    Sketcher.Constraint("Coincident", 30, 2, 31, 1),
    Sketcher.Constraint("Coincident", 31, 2, 28, 1),
    Sketcher.Constraint("Coincident", 32, 2, 33, 2),
    Sketcher.Constraint("Coincident", 33, 1, 34, 1),
    Sketcher.Constraint("Coincident", 34, 2, 35, 1),
    Sketcher.Constraint("Coincident", 35, 2, 32, 1),
    Sketcher.Constraint("Coincident", 36, 1, 37, 1),
    Sketcher.Constraint("Coincident", 37, 2, 38, 1),
    Sketcher.Constraint("Coincident", 38, 2, 39, 1),
    Sketcher.Constraint("Coincident", 39, 2, 36, 2),
    Sketcher.Constraint("Coincident", 40, 2, 41, 2),
    Sketcher.Constraint("Coincident", 41, 1, 42, 1),
    Sketcher.Constraint("Coincident", 42, 2, 43, 1),
    Sketcher.Constraint("Coincident", 43, 2, 40, 1),
    Sketcher.Constraint("Coincident", 44, 1, 45, 1),
    Sketcher.Constraint("Coincident", 45, 2, 46, 1),
    Sketcher.Constraint("Coincident", 46, 2, 47, 1),
    Sketcher.Constraint("Coincident", 47, 2, 44, 2),
    Sketcher.Constraint("Coincident", 3, 3, 1, 3),
    Sketcher.Constraint("Coincident", 4, 3, 1, 3),
    Sketcher.Constraint("Coincident", 6, 3, 1, 3),
    Sketcher.Constraint("Coincident", 9, 3, 1, 3),
    Sketcher.Constraint("Coincident", 11, 3, 1, 3),
    Sketcher.Constraint("Coincident", 12, 3, 1, 3),
    Sketcher.Constraint("Coincident", 14, 3, 1, 3),
    Sketcher.Constraint("Coincident", 19, 3, 17, 3),
    Sketcher.Constraint("Coincident", 20, 3, 17, 3),
    Sketcher.Constraint("Coincident", 22, 3, 17, 3),
    Sketcher.Constraint("Coincident", 24, 3, 17, 3),
    Sketcher.Constraint("Coincident", 26, 3, 17, 3),
    Sketcher.Constraint("Coincident", 29, 3, 17, 3),
    Sketcher.Constraint("Coincident", 31, 3, 17, 3),
    Sketcher.Constraint("Coincident", 35, 3, 33, 3),
    Sketcher.Constraint("Coincident", 36, 3, 33, 3),
    Sketcher.Constraint("Coincident", 38, 3, 33, 3),
    Sketcher.Constraint("Coincident", 41, 3, 33, 3),
    Sketcher.Constraint("Coincident", 43, 3, 33, 3),
    Sketcher.Constraint("Coincident", 44, 3, 33, 3),
    Sketcher.Constraint("Coincident", 46, 3, 33, 3),
    Sketcher.Constraint("Equal", 1, 4),
    Sketcher.Constraint("Equal", 3, 6),
    Sketcher.Constraint("Equal", 4, 9),
    Sketcher.Constraint("Equal", 6, 11),
    Sketcher.Constraint("Equal", 9, 12),
    Sketcher.Constraint("Equal", 11, 14),
    Sketcher.Constraint("Equal", 12, 17),
    Sketcher.Constraint("Equal", 14, 19),
    Sketcher.Constraint("Equal", 17, 20),
    Sketcher.Constraint("Equal", 19, 22),
    Sketcher.Constraint("Equal", 20, 24),
    Sketcher.Constraint("Equal", 22, 26),
    Sketcher.Constraint("Equal", 24, 29),
    Sketcher.Constraint("Equal", 26, 31),
    Sketcher.Constraint("Equal", 29, 33),
    Sketcher.Constraint("Equal", 31, 35),
    Sketcher.Constraint("Equal", 33, 36),
    Sketcher.Constraint("Equal", 35, 38),
    Sketcher.Constraint("Equal", 36, 41),
    Sketcher.Constraint("Equal", 38, 43),
    Sketcher.Constraint("Equal", 41, 44),
    Sketcher.Constraint("Equal", 43, 46),
    Sketcher.Constraint("Perpendicular", 2, 5),
    Sketcher.Constraint("Perpendicular", 0, 7),
    Sketcher.Constraint("Parallel", 7, 8),
    Sketcher.Constraint("Parallel", 5, 10),
    Sketcher.Constraint("Perpendicular", 10, 13),
    Sketcher.Constraint("Perpendicular", 8, 15),
    Sketcher.Constraint("Perpendicular", 15, 16),
    Sketcher.Constraint("Perpendicular", 13, 18),
    Sketcher.Constraint("Perpendicular", 18, 21),
    Sketcher.Constraint("Perpendicular", 16, 23),
    Sketcher.Constraint("Perpendicular", 21, 25),
    Sketcher.Constraint("Perpendicular", 23, 27),
    Sketcher.Constraint("Perpendicular", 27, 28),
    Sketcher.Constraint("Perpendicular", 28, 32),
    Sketcher.Constraint("Parallel", 25, 34),
    Sketcher.Constraint("Perpendicular", 34, 37),
    Sketcher.Constraint("Perpendicular", 32, 39),
    Sketcher.Constraint("Parallel", 39, 40),
    Sketcher.Constraint("Parallel", 37, 42),
    Sketcher.Constraint("Perpendicular", 42, 45),
    Sketcher.Constraint("Perpendicular", 40, 47),
    Sketcher.Constraint("Horizontal", 1, 1, 8, 2),
    Sketcher.Constraint("Horizontal", 0, 2, 9, 1),
    Sketcher.Constraint("Horizontal", 3, 2, 10, 2),
    Sketcher.Constraint("Horizontal", 7, 2, 12, 1),
    Sketcher.Constraint("Horizontal", 5, 2, 14, 2),
    Sketcher.Constraint("Horizontal", 16, 2, 20, 1),
    Sketcher.Constraint("Horizontal", 18, 2, 22, 2),
    Sketcher.Constraint("Horizontal", 24, 1, 28, 2),
    Sketcher.Constraint("Horizontal", 27, 2, 29, 1),
    Sketcher.Constraint("Horizontal", 32, 2, 36, 1),
    Sketcher.Constraint("Horizontal", 34, 2, 38, 2),
    Sketcher.Constraint("Horizontal", 40, 2, 44, 1),
    Sketcher.Constraint("Horizontal", 42, 2, 46, 2),
    Sketcher.Constraint("Vertical", 0, 2, 4, 1),
    Sketcher.Constraint("Vertical", 2, 2, 6, 2),
    Sketcher.Constraint("Vertical", 23, 2, 24, 1),
    Sketcher.Constraint("Vertical", 21, 2, 26, 2),
    Sketcher.Constraint("Vertical", 33, 1, 40, 2),
    Sketcher.Constraint("Vertical", 32, 2, 41, 1),
    Sketcher.Constraint("Radius", 3, 3.0),
    Sketcher.Constraint("Radius", 1, 3.5),
    Sketcher.Constraint("DistanceY", -1, 1, 3, 2, 99.8112),
    Sketcher.Constraint("DistanceY", -1, 1, 33, 1, 18.920699),
    Sketcher.Constraint("Distance", 30, 0.500082),
    Sketcher.Constraint("DistanceX", -1, 1, 33, 3, 363.25013),
    Sketcher.Constraint("DistanceY", -1, 1, 33, 3, 15.507119),
    Sketcher.Constraint("DistanceX", -1, 1, 0, 2, 315.376718),
    Sketcher.Constraint("DistanceY", -1, 1, 5, 2, 93.959348),
    Sketcher.Constraint("DistanceX", -1, 1, 10, 2, 313.941218),
    Sketcher.Constraint("DistanceX", -1, 1, 11, 2, 311.677831),
    Sketcher.Constraint("DistanceY", -1, 1, 16, 2, 99.109379),
    Sketcher.Constraint("DistanceX", -1, 1, 19, 2, 407.34646),
    Sketcher.Constraint("DistanceY", -1, 1, 25, 2, 95.410491),
    Sketcher.Constraint("DistanceY", -1, 1, 26, 2, 97.673878),
    Sketcher.Constraint("DistanceX", -1, 1, 32, 2, 359.83655),
])
pad2 = body.newObject("PartDesign::Pad", "Pad001")
pad2.Profile = sketch2
pad2.Length = 3
pad2.Reversed = True

doc.recompute()
